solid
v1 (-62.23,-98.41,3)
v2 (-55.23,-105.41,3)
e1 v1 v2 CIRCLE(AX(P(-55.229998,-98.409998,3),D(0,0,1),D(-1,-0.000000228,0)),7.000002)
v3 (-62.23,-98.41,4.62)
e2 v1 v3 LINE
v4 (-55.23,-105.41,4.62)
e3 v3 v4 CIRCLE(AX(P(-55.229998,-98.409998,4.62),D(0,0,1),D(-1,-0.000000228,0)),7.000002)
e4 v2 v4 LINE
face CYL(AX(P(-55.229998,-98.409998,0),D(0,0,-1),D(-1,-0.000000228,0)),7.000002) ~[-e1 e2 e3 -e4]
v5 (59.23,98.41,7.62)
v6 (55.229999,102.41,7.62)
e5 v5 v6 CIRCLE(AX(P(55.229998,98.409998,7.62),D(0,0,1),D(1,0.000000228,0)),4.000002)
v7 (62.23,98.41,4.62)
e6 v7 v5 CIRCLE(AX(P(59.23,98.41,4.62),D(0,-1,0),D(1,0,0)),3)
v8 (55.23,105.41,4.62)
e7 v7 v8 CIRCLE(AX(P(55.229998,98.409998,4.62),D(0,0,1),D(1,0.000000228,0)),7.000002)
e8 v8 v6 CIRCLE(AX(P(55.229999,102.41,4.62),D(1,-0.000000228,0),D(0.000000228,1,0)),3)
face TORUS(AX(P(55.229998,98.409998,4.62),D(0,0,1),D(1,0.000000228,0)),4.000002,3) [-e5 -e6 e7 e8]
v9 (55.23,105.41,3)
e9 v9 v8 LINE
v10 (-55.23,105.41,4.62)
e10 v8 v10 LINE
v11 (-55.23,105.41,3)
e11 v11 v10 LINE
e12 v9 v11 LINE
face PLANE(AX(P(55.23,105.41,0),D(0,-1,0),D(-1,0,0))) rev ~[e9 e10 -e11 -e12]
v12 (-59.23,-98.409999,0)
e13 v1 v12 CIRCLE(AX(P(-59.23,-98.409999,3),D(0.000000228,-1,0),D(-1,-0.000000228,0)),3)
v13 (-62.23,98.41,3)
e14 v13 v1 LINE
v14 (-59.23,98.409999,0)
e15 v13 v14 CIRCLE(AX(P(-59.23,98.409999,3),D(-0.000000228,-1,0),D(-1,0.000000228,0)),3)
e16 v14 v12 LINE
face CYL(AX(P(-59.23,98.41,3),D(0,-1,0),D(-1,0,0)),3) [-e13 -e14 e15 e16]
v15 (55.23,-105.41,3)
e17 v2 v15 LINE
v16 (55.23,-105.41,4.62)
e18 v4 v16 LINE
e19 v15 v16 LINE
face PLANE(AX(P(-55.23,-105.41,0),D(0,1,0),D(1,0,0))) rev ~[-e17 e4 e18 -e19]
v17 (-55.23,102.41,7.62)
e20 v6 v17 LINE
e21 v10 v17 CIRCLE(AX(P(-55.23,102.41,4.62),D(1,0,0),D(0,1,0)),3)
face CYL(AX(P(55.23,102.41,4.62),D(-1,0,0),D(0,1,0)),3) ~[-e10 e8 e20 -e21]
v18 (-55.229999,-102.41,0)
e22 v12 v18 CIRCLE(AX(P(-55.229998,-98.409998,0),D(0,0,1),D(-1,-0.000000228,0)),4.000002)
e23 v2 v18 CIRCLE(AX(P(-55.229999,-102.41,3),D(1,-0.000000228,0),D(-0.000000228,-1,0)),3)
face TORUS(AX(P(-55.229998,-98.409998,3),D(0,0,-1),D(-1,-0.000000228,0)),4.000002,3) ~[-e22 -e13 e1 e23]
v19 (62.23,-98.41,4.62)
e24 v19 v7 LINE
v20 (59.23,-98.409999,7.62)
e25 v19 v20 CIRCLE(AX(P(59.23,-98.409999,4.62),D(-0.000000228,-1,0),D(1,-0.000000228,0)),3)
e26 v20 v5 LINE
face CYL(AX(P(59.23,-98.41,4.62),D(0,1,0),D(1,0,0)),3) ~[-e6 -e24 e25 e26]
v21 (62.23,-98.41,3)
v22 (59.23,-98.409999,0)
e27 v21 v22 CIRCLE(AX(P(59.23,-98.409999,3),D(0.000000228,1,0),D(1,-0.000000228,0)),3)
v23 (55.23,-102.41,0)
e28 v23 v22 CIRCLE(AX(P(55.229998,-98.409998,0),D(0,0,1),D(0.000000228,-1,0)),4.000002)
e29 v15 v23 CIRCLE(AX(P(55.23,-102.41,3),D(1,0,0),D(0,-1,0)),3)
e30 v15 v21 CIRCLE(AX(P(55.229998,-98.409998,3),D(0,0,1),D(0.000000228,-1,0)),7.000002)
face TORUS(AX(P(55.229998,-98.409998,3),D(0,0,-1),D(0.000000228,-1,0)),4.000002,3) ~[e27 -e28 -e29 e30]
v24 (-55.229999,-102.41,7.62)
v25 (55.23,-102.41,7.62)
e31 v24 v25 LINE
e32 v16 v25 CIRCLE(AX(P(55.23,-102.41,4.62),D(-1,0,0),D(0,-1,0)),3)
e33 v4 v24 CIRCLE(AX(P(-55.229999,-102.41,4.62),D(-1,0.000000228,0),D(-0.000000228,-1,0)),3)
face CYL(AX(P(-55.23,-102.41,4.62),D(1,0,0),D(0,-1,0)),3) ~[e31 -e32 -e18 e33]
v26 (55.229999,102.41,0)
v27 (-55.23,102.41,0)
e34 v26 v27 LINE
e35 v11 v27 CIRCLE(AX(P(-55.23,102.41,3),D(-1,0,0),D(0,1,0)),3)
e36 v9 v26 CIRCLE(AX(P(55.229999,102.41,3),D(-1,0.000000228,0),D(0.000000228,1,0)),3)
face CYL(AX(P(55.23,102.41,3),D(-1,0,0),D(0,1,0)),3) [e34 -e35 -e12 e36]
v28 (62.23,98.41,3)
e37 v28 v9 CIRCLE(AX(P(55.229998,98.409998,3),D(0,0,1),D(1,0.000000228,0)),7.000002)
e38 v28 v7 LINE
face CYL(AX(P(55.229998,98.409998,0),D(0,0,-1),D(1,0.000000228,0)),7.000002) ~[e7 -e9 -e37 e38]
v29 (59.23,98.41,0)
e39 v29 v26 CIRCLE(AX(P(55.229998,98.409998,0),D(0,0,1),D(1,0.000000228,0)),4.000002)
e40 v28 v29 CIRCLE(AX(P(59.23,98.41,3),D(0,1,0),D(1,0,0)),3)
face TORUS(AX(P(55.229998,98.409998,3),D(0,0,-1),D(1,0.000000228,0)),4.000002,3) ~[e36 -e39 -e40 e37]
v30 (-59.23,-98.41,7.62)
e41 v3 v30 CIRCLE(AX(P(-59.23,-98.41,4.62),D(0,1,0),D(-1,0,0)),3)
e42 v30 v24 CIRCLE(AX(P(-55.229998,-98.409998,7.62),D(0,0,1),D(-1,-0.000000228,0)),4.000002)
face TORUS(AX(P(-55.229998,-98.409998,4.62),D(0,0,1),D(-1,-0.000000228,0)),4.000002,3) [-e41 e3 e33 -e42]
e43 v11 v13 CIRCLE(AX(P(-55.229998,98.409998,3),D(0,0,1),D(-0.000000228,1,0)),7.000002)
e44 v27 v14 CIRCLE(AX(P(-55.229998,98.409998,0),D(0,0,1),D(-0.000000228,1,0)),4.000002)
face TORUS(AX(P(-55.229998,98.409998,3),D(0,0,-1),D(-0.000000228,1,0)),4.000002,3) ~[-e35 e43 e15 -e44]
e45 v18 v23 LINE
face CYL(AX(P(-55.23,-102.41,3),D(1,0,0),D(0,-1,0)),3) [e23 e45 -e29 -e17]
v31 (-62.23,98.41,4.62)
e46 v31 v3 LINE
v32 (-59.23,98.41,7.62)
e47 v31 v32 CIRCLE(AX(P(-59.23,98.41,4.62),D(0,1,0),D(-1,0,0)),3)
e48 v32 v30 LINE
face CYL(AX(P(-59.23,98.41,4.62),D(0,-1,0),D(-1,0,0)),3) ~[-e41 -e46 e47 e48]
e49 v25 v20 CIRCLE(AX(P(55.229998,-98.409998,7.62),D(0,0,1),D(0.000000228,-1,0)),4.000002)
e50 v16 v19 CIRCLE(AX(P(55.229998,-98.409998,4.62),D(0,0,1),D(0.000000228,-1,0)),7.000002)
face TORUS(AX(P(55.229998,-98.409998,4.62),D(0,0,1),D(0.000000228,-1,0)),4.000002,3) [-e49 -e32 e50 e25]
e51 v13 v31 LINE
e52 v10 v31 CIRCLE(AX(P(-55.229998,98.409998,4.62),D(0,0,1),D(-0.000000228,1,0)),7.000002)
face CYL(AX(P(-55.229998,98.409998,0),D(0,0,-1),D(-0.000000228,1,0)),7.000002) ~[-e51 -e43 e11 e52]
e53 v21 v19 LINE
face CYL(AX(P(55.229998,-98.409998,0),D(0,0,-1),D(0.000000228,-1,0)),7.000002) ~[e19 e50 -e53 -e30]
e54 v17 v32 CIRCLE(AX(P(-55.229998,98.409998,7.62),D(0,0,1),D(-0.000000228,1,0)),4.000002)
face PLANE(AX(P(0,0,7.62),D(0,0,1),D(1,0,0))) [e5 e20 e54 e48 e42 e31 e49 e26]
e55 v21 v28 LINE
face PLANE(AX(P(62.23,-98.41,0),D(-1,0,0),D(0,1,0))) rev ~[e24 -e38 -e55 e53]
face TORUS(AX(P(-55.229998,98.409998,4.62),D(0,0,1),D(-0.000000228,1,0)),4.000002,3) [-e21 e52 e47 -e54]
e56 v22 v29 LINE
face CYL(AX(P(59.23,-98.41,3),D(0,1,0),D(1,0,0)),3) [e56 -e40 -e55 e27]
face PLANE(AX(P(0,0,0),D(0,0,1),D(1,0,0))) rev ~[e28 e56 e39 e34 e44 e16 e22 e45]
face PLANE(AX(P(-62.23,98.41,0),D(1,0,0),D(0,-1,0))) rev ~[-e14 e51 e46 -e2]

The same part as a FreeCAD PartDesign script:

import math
import FreeCAD as App
import Part
import Sketcher

V = App.Vector


def edges_at(feature, points):
    """Names of the edges that pass closest to the given points."""
    edges = feature.Shape.Edges
    near = lambda p: min(range(len(edges)), key=lambda i: edges[i].distToShape(Part.Vertex(*p))[0])
    return sorted({f"Edge{near(p) + 1}" for p in points})

doc = App.newDocument("Part")
body = doc.addObject("PartDesign::Body", "Body")

# Sketch on XY plane
sketch1 = body.newObject("Sketcher::SketchObject", "Sketch")
sketch1.AttachmentSupport = (doc.getObject("XY_Plane"), [""])
sketch1.MapMode = "FlatFace"
sketch1.addGeometry([
    Part.ArcOfCircle(Part.Circle(V(-55.229998, -98.409998, 0), V(0, 0, 1), 7.000002), math.radians(-179.999987), math.radians(-90.000013)),  # 0
    Part.LineSegment(V(-55.23, -105.41, 0), V(55.23, -105.41, 0)),  # 1
    Part.ArcOfCircle(Part.Circle(V(55.229998, -98.409998, 0), V(0, 0, 1), 7.000002), math.radians(-89.999987), math.radians(-0.000013)),  # 2
    Part.LineSegment(V(62.23, -98.41, 0), V(62.23, 98.41, 0)),  # 3
    Part.ArcOfCircle(Part.Circle(V(55.229998, 98.409998, 0), V(0, 0, 1), 7.000002), math.radians(0.000013), math.radians(89.999987)),  # 4
    Part.LineSegment(V(55.23, 105.41, 0), V(-55.23, 105.41, 0)),  # 5
    Part.ArcOfCircle(Part.Circle(V(-55.229998, 98.409998, 0), V(0, 0, 1), 7.000002), math.radians(90.000013), math.radians(179.999987)),  # 6
    Part.LineSegment(V(-62.23, 98.41, 0), V(-62.23, -98.41, 0)),  # 7
], False)
sketch1.addConstraint([
    Sketcher.Constraint("Tangent", 0, 2, 1, 1),
    Sketcher.Constraint("Tangent", 1, 2, 2, 1),
    Sketcher.Constraint("Tangent", 2, 2, 3, 1),
    Sketcher.Constraint("Tangent", 3, 2, 4, 1),
    Sketcher.Constraint("Tangent", 4, 2, 5, 1),
    Sketcher.Constraint("Tangent", 5, 2, 6, 1),
    Sketcher.Constraint("Tangent", 6, 2, 7, 1),
    Sketcher.Constraint("Tangent", 7, 2, 0, 1),
    Sketcher.Constraint("Horizontal", 1),
    Sketcher.Constraint("Vertical", 3),
    Sketcher.Constraint("Horizontal", 5),
    Sketcher.Constraint("Vertical", 7),
    Sketcher.Constraint("Equal", 0, 2),
    Sketcher.Constraint("Equal", 2, 4),
    Sketcher.Constraint("Equal", 4, 6),
    Sketcher.Constraint("Symmetric", 0, 3, 4, 3, -1, 1),
    Sketcher.Constraint("Radius", 0, 7.000002),
    Sketcher.Constraint("DistanceX", 1, 1, 1, 2, 110.46),
    Sketcher.Constraint("DistanceY", 3, 1, 3, 2, 196.82),
])
pad1 = body.newObject("PartDesign::Pad", "Pad")
pad1.Profile = sketch1
pad1.Length = 7.62
doc.recompute()

fillet = body.newObject("PartDesign::Fillet", "Fillet")
fillet.Base = (pad1, edges_at(pad1, [(-62.23, 0, 7.62)]))
fillet.Radius = 3
doc.recompute()

fillet2 = body.newObject("PartDesign::Fillet", "Fillet001")
fillet2.Base = (fillet, edges_at(fillet, [
    (-60.18, -103.36, 0),
    (0, -105.41, 0),
    (60.18, -103.36, 0),
    (62.23, 0, 0),
    (60.18, 103.36, 0),
    (0, 105.41, 0),
    (-60.18, 103.36, 0),
    (-62.23, 0, 0),
]))
fillet2.Radius = 3

doc.recompute()
